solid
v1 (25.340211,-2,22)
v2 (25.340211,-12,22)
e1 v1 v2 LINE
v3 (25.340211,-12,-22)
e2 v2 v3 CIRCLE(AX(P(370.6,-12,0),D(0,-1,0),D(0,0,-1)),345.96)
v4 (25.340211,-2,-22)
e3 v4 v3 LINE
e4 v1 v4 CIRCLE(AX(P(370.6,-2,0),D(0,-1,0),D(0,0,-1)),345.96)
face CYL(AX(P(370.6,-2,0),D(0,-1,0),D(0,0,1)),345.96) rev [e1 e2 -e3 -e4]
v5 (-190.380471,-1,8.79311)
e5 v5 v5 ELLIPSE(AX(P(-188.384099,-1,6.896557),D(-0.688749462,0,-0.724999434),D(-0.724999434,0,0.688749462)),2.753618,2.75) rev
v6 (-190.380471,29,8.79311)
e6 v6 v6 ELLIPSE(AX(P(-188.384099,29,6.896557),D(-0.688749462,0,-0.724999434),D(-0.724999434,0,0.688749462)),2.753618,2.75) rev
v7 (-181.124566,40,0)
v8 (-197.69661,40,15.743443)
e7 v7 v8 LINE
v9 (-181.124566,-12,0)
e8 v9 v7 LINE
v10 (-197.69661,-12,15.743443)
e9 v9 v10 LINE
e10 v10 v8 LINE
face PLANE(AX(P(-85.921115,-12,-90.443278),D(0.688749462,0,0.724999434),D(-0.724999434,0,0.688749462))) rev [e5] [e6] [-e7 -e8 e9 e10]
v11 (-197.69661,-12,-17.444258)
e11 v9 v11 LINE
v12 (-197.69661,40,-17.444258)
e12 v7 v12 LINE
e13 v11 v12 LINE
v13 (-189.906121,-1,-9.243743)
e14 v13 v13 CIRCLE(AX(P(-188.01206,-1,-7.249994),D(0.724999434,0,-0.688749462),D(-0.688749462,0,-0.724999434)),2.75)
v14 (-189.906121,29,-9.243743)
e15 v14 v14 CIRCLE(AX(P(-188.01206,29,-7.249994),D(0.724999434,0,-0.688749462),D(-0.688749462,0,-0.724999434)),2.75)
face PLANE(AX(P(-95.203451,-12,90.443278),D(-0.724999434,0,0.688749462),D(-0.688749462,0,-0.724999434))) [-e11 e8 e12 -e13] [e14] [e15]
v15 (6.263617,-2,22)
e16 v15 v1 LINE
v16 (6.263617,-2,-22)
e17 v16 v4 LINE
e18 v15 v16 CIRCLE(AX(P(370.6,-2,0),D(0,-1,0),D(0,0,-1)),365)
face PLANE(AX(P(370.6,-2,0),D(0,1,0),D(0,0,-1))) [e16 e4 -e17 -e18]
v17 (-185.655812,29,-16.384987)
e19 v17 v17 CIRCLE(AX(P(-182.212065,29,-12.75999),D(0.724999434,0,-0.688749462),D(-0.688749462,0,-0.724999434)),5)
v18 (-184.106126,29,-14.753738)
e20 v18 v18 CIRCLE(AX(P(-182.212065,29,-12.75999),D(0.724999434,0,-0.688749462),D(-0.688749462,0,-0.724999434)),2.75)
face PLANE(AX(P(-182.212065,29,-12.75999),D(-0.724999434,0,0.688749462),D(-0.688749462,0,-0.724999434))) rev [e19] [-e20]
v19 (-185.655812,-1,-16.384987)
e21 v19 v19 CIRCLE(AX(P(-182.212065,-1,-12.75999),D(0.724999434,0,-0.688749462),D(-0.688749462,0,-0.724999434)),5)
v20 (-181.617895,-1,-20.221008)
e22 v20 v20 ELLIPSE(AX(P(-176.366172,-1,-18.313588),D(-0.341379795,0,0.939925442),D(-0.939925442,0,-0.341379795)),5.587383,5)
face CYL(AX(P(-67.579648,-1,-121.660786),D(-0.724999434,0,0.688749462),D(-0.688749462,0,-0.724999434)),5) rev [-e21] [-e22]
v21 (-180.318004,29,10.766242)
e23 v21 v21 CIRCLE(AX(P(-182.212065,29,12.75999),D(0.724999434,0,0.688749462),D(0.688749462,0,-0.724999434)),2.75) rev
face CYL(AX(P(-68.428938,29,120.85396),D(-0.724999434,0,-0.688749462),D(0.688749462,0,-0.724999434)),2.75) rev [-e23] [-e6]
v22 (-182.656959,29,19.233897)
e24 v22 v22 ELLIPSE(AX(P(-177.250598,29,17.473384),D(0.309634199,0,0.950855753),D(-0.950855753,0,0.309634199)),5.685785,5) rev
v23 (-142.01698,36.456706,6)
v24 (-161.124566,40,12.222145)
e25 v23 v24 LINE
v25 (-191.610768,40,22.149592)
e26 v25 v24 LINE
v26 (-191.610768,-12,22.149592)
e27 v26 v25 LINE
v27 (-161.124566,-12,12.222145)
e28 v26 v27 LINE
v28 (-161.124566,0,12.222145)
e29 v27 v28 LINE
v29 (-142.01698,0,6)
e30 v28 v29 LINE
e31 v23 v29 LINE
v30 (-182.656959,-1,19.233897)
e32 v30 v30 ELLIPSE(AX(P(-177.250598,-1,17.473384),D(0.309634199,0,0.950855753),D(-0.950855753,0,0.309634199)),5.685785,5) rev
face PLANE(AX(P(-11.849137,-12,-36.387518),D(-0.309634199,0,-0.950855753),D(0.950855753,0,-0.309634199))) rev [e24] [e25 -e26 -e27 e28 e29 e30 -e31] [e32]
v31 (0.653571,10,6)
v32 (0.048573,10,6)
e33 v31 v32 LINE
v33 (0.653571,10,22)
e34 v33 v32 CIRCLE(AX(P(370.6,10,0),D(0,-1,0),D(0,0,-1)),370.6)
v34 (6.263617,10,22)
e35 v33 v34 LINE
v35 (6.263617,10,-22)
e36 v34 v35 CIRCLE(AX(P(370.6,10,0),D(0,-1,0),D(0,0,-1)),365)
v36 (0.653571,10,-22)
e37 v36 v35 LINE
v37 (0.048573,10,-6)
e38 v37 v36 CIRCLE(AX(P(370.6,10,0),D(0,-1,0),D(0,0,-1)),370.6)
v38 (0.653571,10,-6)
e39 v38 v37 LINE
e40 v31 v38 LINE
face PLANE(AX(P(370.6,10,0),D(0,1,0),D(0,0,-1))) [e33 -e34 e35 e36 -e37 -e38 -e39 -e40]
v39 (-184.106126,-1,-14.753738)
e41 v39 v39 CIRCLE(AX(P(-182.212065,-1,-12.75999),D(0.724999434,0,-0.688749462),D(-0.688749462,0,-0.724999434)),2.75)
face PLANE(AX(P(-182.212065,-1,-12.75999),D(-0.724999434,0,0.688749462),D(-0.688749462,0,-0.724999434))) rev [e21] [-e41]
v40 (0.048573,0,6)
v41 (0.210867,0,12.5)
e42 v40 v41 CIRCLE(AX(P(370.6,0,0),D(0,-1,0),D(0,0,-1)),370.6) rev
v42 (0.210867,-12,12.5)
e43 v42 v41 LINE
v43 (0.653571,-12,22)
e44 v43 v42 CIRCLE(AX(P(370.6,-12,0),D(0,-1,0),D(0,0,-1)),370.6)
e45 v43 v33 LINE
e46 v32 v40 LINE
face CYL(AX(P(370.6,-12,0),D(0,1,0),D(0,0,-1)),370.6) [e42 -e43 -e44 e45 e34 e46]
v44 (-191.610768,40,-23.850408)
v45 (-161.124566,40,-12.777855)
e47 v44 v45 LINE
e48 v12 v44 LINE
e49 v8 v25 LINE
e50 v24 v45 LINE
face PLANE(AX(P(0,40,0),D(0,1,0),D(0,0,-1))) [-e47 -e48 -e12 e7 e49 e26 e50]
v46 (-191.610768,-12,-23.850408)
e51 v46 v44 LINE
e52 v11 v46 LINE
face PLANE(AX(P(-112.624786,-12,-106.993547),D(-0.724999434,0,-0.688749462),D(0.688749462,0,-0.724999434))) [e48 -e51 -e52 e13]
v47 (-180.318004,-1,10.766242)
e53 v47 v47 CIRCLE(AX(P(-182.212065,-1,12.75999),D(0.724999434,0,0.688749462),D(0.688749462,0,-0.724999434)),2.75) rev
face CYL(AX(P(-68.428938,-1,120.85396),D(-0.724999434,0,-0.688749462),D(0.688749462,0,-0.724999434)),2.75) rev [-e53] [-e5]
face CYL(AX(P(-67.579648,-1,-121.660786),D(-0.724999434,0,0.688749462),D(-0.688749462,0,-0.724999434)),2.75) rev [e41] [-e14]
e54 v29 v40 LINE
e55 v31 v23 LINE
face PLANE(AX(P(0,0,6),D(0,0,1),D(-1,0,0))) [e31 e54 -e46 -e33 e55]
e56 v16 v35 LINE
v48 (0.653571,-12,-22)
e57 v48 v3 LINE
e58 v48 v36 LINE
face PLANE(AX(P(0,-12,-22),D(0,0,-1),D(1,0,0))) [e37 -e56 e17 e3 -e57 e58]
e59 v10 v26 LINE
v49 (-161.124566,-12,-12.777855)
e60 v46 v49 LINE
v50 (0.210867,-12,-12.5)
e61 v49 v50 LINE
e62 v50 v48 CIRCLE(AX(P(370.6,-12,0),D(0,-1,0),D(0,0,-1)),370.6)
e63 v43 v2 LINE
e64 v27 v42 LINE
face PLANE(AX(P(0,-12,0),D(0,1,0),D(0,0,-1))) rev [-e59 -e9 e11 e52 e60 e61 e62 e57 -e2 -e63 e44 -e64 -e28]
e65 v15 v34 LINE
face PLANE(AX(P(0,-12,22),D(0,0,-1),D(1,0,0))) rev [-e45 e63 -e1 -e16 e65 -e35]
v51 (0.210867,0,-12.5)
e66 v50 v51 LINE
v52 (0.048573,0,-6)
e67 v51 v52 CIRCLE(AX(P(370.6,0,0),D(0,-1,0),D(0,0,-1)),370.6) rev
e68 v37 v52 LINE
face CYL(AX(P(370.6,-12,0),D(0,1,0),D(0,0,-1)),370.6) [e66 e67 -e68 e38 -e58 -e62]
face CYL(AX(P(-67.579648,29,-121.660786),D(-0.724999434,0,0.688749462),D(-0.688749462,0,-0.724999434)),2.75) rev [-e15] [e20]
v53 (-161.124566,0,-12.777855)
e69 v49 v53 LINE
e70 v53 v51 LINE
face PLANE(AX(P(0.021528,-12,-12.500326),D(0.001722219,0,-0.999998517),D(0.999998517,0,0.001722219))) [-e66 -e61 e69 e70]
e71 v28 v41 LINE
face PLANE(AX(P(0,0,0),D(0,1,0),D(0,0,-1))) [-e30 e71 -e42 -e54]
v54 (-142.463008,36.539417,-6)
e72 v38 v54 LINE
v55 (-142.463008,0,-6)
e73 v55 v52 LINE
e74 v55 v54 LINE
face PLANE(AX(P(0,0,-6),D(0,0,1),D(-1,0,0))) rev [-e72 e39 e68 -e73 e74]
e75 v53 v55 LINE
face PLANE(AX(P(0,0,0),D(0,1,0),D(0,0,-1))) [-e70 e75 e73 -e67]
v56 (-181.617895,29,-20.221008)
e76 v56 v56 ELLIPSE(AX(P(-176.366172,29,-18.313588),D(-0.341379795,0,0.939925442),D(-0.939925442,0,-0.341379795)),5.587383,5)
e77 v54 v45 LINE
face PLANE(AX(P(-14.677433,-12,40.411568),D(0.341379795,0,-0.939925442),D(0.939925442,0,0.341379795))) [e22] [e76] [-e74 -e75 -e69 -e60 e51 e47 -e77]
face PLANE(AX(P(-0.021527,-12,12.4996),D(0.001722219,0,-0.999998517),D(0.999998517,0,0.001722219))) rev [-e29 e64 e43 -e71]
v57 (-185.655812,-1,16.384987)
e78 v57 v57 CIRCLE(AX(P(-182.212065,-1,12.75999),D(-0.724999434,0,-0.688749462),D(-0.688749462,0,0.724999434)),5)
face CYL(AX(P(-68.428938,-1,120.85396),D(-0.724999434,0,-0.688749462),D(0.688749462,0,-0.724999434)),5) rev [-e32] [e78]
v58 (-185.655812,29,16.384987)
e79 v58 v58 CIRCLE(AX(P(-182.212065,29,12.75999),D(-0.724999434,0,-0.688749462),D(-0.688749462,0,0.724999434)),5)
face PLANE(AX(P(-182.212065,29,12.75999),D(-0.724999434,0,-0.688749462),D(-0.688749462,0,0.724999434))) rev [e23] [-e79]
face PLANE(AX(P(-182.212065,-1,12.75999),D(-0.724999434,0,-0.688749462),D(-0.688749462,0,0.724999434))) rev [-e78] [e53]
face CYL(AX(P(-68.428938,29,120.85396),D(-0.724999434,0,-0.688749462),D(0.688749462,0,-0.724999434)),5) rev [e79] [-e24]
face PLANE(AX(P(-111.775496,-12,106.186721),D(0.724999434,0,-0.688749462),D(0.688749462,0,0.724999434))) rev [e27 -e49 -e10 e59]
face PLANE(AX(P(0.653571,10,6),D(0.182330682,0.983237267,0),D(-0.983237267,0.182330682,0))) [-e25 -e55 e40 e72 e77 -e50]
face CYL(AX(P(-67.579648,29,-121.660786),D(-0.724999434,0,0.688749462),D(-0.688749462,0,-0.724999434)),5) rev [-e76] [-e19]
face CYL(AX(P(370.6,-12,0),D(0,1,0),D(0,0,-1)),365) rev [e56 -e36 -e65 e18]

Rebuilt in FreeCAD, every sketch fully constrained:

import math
import FreeCAD as App
import Part
import Sketcher

doc = App.newDocument("Part")
body = doc.addObject("PartDesign::Body", "Body")

sketch1 = body.newObject("Sketcher::SketchObject", "Sketch")
sketch1.AttachmentSupport = (doc.getObject("XZ_Plane"), [""])
sketch1.MapMode = "FlatFace"
sketch1.addGeometry(Part.LineSegment(App.Vector(-198, -16, 0), App.Vector(-181, 0, 0)), False)
sketch1.addGeometry(Part.LineSegment(App.Vector(-181, 0, 0), App.Vector(-198, 17, 0)), False)
sketch1.addGeometry(Part.LineSegment(App.Vector(-198, 17, 0), App.Vector(-192, 24, 0)), False)
sketch1.addGeometry(Part.LineSegment(App.Vector(-192, 24, 0), App.Vector(-161, 13, 0)), False)
sketch1.addGeometry(Part.LineSegment(App.Vector(-161, 13, 0), App.Vector(0, 12, 0)), False)
sketch1.addGeometry(Part.ArcOfCircle(Part.Circle(App.Vector(371, 0, 0), App.Vector(0, 0, 1), 371), math.radians(176.6), math.radians(178.07)), False)
sketch1.addGeometry(Part.LineSegment(App.Vector(1, 22, 0), App.Vector(6, 22, 0)), False)
sketch1.addGeometry(Part.ArcOfCircle(Part.Circle(App.Vector(371, 0, 0), App.Vector(0, 0, 1), 365), math.radians(176.54), math.radians(183.46)), False)
sketch1.addGeometry(Part.LineSegment(App.Vector(6, -22, 0), App.Vector(1, -22, 0)), False)
sketch1.addGeometry(Part.ArcOfCircle(Part.Circle(App.Vector(371, 0, 0), App.Vector(0, 0, 1), 371), math.radians(-178.07), math.radians(-176.6)), False)
sketch1.addGeometry(Part.LineSegment(App.Vector(0, -12, 0), App.Vector(-161, -12, 0)), False)
sketch1.addGeometry(Part.LineSegment(App.Vector(-161, -12, 0), App.Vector(-192, -22, 0)), False)
sketch1.addGeometry(Part.LineSegment(App.Vector(-192, -22, 0), App.Vector(-198, -16, 0)), False)
sketch1.addConstraint(Sketcher.Constraint("Coincident", 0, 2, 1, 1))
sketch1.addConstraint(Sketcher.Constraint("Coincident", 1, 2, 2, 1))
sketch1.addConstraint(Sketcher.Constraint("Coincident", 2, 2, 3, 1))
sketch1.addConstraint(Sketcher.Constraint("Coincident", 3, 2, 4, 1))
sketch1.addConstraint(Sketcher.Constraint("Coincident", 4, 2, 5, 2))
sketch1.addConstraint(Sketcher.Constraint("Coincident", 5, 1, 6, 1))
sketch1.addConstraint(Sketcher.Constraint("Coincident", 6, 2, 7, 1))
sketch1.addConstraint(Sketcher.Constraint("Coincident", 7, 2, 8, 1))
sketch1.addConstraint(Sketcher.Constraint("Coincident", 8, 2, 9, 2))
sketch1.addConstraint(Sketcher.Constraint("Coincident", 9, 1, 10, 1))
sketch1.addConstraint(Sketcher.Constraint("Coincident", 10, 2, 11, 1))
sketch1.addConstraint(Sketcher.Constraint("Coincident", 11, 2, 12, 1))
sketch1.addConstraint(Sketcher.Constraint("Coincident", 12, 2, 0, 1))
sketch1.addConstraint(Sketcher.Constraint("Horizontal", 6))
sketch1.addConstraint(Sketcher.Constraint("Horizontal", 8))
sketch1.addConstraint(Sketcher.Constraint("Coincident", 7, 3, 5, 3))
sketch1.addConstraint(Sketcher.Constraint("Coincident", 9, 3, 5, 3))
sketch1.addConstraint(Sketcher.Constraint("Equal", 5, 9))
sketch1.addConstraint(Sketcher.Constraint("Symmetric", 6, 2, 7, 2, -1))
sketch1.addConstraint(Sketcher.Constraint("PointOnObject", 0, 2, -1))
sketch1.addConstraint(Sketcher.Constraint("Perpendicular", 0, 1))
sketch1.addConstraint(Sketcher.Constraint("Parallel", 4, 10))
sketch1.addConstraint(Sketcher.Constraint("Parallel", 1, 12))
sketch1.addConstraint(Sketcher.Constraint("Vertical", 4, 2, 9, 1))
sketch1.addConstraint(Sketcher.Constraint("Vertical", 3, 2, 10, 2))
sketch1.addConstraint(Sketcher.Constraint("Vertical", 2, 2, 11, 2))
sketch1.addConstraint(Sketcher.Constraint("Vertical", 1, 2, 12, 2))
sketch1.addConstraint(Sketcher.Constraint("Equal", 2, 12))
sketch1.addConstraint(Sketcher.Constraint("Radius", 7, 365.0))
sketch1.addConstraint(Sketcher.Constraint("DistanceY", -1, 1, 6, 2, 22.0))
sketch1.addConstraint(Sketcher.Constraint("DistanceX", 0, 2, 3, 2, 20.0))
sketch1.addConstraint(Sketcher.Constraint("DistanceY", 9, 1, 4, 2, 25.0))
sketch1.addConstraint(Sketcher.Constraint("DistanceY", 11, 2, 2, 2, 46.0))
sketch1.addConstraint(Sketcher.Constraint("DistanceX", -1, 1, 7, 3, 370.6))
sketch1.addConstraint(Sketcher.Constraint("Radius", 5, 370.599996))
sketch1.addConstraint(Sketcher.Constraint("DistanceY", 12, 2, 1, 2, 33.1877))
sketch1.addConstraint(Sketcher.Constraint("Distance", 0, 22.858011))
sketch1.addConstraint(Sketcher.Constraint("Distance", 4, 161.335672))
sketch1.addConstraint(Sketcher.Constraint("Distance", 11, 32.061858))
pad1 = body.newObject("PartDesign::Pad", "Pad")
pad1.Profile = sketch1
pad1.Length = 12

sketch2 = body.newObject("Sketcher::SketchObject", "Sketch001")
sketch2.AttachmentSupport = (doc.getObject("XZ_Plane"), [""])
sketch2.MapMode = "FlatFace"
sketch2.AttachmentOffset = App.Placement(App.Vector(0, 0, 2), App.Rotation())
sketch2.addGeometry(Part.LineSegment(App.Vector(25, -22, 0), App.Vector(6, -22, 0)), False)
sketch2.addGeometry(Part.ArcOfCircle(Part.Circle(App.Vector(371, 0, 0), App.Vector(0, 0, 1), 365), math.radians(176.54), math.radians(183.46)), False)
sketch2.addGeometry(Part.LineSegment(App.Vector(6, 22, 0), App.Vector(25, 22, 0)), False)
sketch2.addGeometry(Part.ArcOfCircle(Part.Circle(App.Vector(371, 0, 0), App.Vector(0, 0, 1), 346), math.radians(176.35), math.radians(183.65)), False)
sketch2.addConstraint(Sketcher.Constraint("Coincident", 0, 2, 1, 2))
sketch2.addConstraint(Sketcher.Constraint("Coincident", 1, 1, 2, 1))
sketch2.addConstraint(Sketcher.Constraint("Coincident", 2, 2, 3, 1))
sketch2.addConstraint(Sketcher.Constraint("Coincident", 3, 2, 0, 1))
sketch2.addConstraint(Sketcher.Constraint("Horizontal", 0))
sketch2.addConstraint(Sketcher.Constraint("Horizontal", 2))
sketch2.addConstraint(Sketcher.Constraint("Coincident", 3, 3, 1, 3))
sketch2.addConstraint(Sketcher.Constraint("Symmetric", 0, 2, 1, 1, -1))
sketch2.addConstraint(Sketcher.Constraint("Radius", 1, 365.0))
sketch2.addConstraint(Sketcher.Constraint("Radius", 3, 345.96))
sketch2.addConstraint(Sketcher.Constraint("DistanceY", 0, 2, -1, 1, 22.0))
sketch2.addConstraint(Sketcher.Constraint("DistanceX", -1, 1, 1, 3, 370.6))
pad2 = body.newObject("PartDesign::Pad", "Pad001")
pad2.Profile = sketch2
pad2.Length = 10

sketch3 = body.newObject("Sketcher::SketchObject", "Sketch002")
sketch3.AttachmentSupport = (doc.getObject("XZ_Plane"), [""])
sketch3.MapMode = "FlatFace"
sketch3.AttachmentOffset = App.Placement(App.Vector(0, 0, -10), App.Rotation())
sketch3.addGeometry(Part.ArcOfCircle(Part.Circle(App.Vector(371, 0, 0), App.Vector(0, 0, 1), 371), math.radians(-178.07), math.radians(-176.6)), False)
sketch3.addGeometry(Part.ArcOfCircle(Part.Circle(App.Vector(371, 0, 0), App.Vector(0, 0, 1), 371), math.radians(178.07), math.radians(181.93)), False)
sketch3.addGeometry(Part.ArcOfCircle(Part.Circle(App.Vector(371, 0, 0), App.Vector(0, 0, 1), 371), math.radians(176.6), math.radians(178.07)), False)
sketch3.addGeometry(Part.LineSegment(App.Vector(1, 22, 0), App.Vector(6, 22, 0)), False)
sketch3.addGeometry(Part.ArcOfCircle(Part.Circle(App.Vector(371, 0, 0), App.Vector(0, 0, 1), 365), math.radians(176.54), math.radians(183.46)), False)
sketch3.addGeometry(Part.LineSegment(App.Vector(6, -22, 0), App.Vector(1, -22, 0)), False)
sketch3.addConstraint(Sketcher.Constraint("Tangent", 0, 1, 1, 2))
sketch3.addConstraint(Sketcher.Constraint("Tangent", 1, 1, 2, 2))
sketch3.addConstraint(Sketcher.Constraint("Coincident", 2, 1, 3, 1))
sketch3.addConstraint(Sketcher.Constraint("Coincident", 3, 2, 4, 1))
sketch3.addConstraint(Sketcher.Constraint("Coincident", 4, 2, 5, 1))
sketch3.addConstraint(Sketcher.Constraint("Coincident", 5, 2, 0, 2))
sketch3.addConstraint(Sketcher.Constraint("Horizontal", 3))
sketch3.addConstraint(Sketcher.Constraint("Horizontal", 5))
sketch3.addConstraint(Sketcher.Constraint("Coincident", 2, 3, 0, 3))
sketch3.addConstraint(Sketcher.Constraint("Coincident", 4, 3, 0, 3))
sketch3.addConstraint(Sketcher.Constraint("PointOnObject", 0, 3, -1))
sketch3.addConstraint(Sketcher.Constraint("Vertical", 0, 1, 1, 1))
sketch3.addConstraint(Sketcher.Constraint("Vertical", 3, 2, 4, 2))
sketch3.addConstraint(Sketcher.Constraint("Radius", 4, 365.0))
sketch3.addConstraint(Sketcher.Constraint("Radius", 1, 370.6))
sketch3.addConstraint(Sketcher.Constraint("DistanceY", -1, 1, 3, 2, 22.0))
sketch3.addConstraint(Sketcher.Constraint("DistanceY", 0, 1, 1, 1, 25.0))
sketch3.addConstraint(Sketcher.Constraint("DistanceX", -1, 1, 1, 3, 370.6))
pad3 = body.newObject("PartDesign::Pad", "Pad002")
pad3.Profile = sketch3
pad3.Length = 22

sketch4 = body.newObject("Sketcher::SketchObject", "Sketch003")
sketch4.AttachmentSupport = (doc.getObject("XZ_Plane"), [""])
sketch4.MapMode = "FlatFace"
sketch4.addGeometry(Part.LineSegment(App.Vector(-198, -16, 0), App.Vector(-181, 0, 0)), False)
sketch4.addGeometry(Part.LineSegment(App.Vector(-181, 0, 0), App.Vector(-198, 17, 0)), False)
sketch4.addGeometry(Part.LineSegment(App.Vector(-198, 17, 0), App.Vector(-192, 24, 0)), False)
sketch4.addGeometry(Part.LineSegment(App.Vector(-192, 24, 0), App.Vector(-125, 0, 0)), False)
sketch4.addGeometry(Part.LineSegment(App.Vector(-125, 0, 0), App.Vector(-192, -22, 0)), False)
sketch4.addGeometry(Part.LineSegment(App.Vector(-192, -22, 0), App.Vector(-198, -16, 0)), False)
sketch4.addConstraint(Sketcher.Constraint("Coincident", 0, 2, 1, 1))
sketch4.addConstraint(Sketcher.Constraint("Coincident", 1, 2, 2, 1))
sketch4.addConstraint(Sketcher.Constraint("Coincident", 2, 2, 3, 1))
sketch4.addConstraint(Sketcher.Constraint("Coincident", 3, 2, 4, 1))
sketch4.addConstraint(Sketcher.Constraint("Coincident", 4, 2, 5, 1))
sketch4.addConstraint(Sketcher.Constraint("Coincident", 5, 2, 0, 1))
sketch4.addConstraint(Sketcher.Constraint("PointOnObject", 0, 2, -1))
sketch4.addConstraint(Sketcher.Constraint("Perpendicular", 0, 1))
sketch4.addConstraint(Sketcher.Constraint("Parallel", 1, 5))
sketch4.addConstraint(Sketcher.Constraint("Vertical", 2, 2, 4, 2))
sketch4.addConstraint(Sketcher.Constraint("Vertical", 1, 2, 5, 2))
sketch4.addConstraint(Sketcher.Constraint("Equal", 2, 5))
sketch4.addConstraint(Sketcher.Constraint("DistanceY", 4, 2, 2, 2, 46.0))
sketch4.addConstraint(Sketcher.Constraint("DistanceX", 0, 2, 3, 2, 56.293098))
sketch4.addConstraint(Sketcher.Constraint("DistanceX", 2, 2, 3, 2, 66.7793))
sketch4.addConstraint(Sketcher.Constraint("DistanceY", 5, 2, 1, 2, 33.1877))
sketch4.addConstraint(Sketcher.Constraint("DistanceX", 1, 2, -1, 1, 197.69661))
sketch4.addConstraint(Sketcher.Constraint("DistanceY", 3, 2, 2, 2, 24.254162))
pad4 = body.newObject("PartDesign::Pad", "Pad003")
pad4.Profile = sketch4
pad4.Length = 40
pad4.Reversed = True

sketch5 = body.newObject("Sketcher::SketchObject", "Sketch004")
sketch5.AttachmentSupport = (doc.getObject("XY_Plane"), [""])
sketch5.MapMode = "FlatFace"
sketch5.addGeometry(Part.LineSegment(App.Vector(1, 10, 0), App.Vector(-161, 40, 0)), False)
sketch5.addGeometry(Part.LineSegment(App.Vector(-161, 40, 0), App.Vector(-161, 0, 0)), False)
sketch5.addGeometry(Part.LineSegment(App.Vector(-161, 0, 0), App.Vector(1, 0, 0)), False)
sketch5.addGeometry(Part.LineSegment(App.Vector(1, 0, 0), App.Vector(1, 10, 0)), False)
sketch5.addConstraint(Sketcher.Constraint("Coincident", 0, 2, 1, 1))
sketch5.addConstraint(Sketcher.Constraint("Coincident", 1, 2, 2, 1))
sketch5.addConstraint(Sketcher.Constraint("Coincident", 2, 2, 3, 1))
sketch5.addConstraint(Sketcher.Constraint("Coincident", 3, 2, 0, 1))
sketch5.addConstraint(Sketcher.Constraint("Vertical", 1))
sketch5.addConstraint(Sketcher.Constraint("Horizontal", 2))
sketch5.addConstraint(Sketcher.Constraint("Vertical", 3))
sketch5.addConstraint(Sketcher.Constraint("PointOnObject", 1, 2, -1))
sketch5.addConstraint(Sketcher.Constraint("DistanceY", 1, 2, 1, 1, 40.0))
sketch5.addConstraint(Sketcher.Constraint("DistanceY", 3, 1, 3, 2, 10.0))
sketch5.addConstraint(Sketcher.Constraint("DistanceX", 2, 1, 2, 2, 161.778137))
sketch5.addConstraint(Sketcher.Constraint("DistanceX", -1, 1, 2, 2, 0.653571))
pad5 = body.newObject("PartDesign::Pad", "Pad004")
pad5.Profile = sketch5
pad5.Type = "TwoLengths"
pad5.Length = 6
pad5.Length2 = 6

sketch6 = body.newObject("Sketcher::SketchObject", "Sketch005")
sketch6.AttachmentSupport = (doc.getObject("XY_Plane"), [""])
sketch6.MapMode = "FlatFace"
sketch6.addGeometry(Part.LineSegment(App.Vector(-161, 40, 0), App.Vector(1, 10, 0)), False)
sketch6.addGeometry(Part.LineSegment(App.Vector(1, 10, 0), App.Vector(2, 20, 0)), False)
sketch6.addGeometry(Part.LineSegment(App.Vector(2, 20, 0), App.Vector(-159, 50, 0)), False)
sketch6.addGeometry(Part.LineSegment(App.Vector(-159, 50, 0), App.Vector(-161, 40, 0)), False)
sketch6.addConstraint(Sketcher.Constraint("Coincident", 0, 2, 1, 1))
sketch6.addConstraint(Sketcher.Constraint("Coincident", 1, 2, 2, 1))
sketch6.addConstraint(Sketcher.Constraint("Coincident", 2, 2, 3, 1))
sketch6.addConstraint(Sketcher.Constraint("Coincident", 3, 2, 0, 1))
sketch6.addConstraint(Sketcher.Constraint("Perpendicular", 0, 1))
sketch6.addConstraint(Sketcher.Constraint("Perpendicular", 1, 2))
sketch6.addConstraint(Sketcher.Constraint("Perpendicular", 2, 3))
sketch6.addConstraint(Sketcher.Constraint("Distance", 1, 10.0))
sketch6.addConstraint(Sketcher.Constraint("DistanceY", -1, 1, 0, 2, 10.0))
sketch6.addConstraint(Sketcher.Constraint("DistanceY", -1, 1, 3, 2, 40.0))
sketch6.addConstraint(Sketcher.Constraint("DistanceX", -1, 1, 0, 2, 0.653571))
sketch6.addConstraint(Sketcher.Constraint("DistanceX", -1, 1, 1, 2, 2.476878))
pocket1 = body.newObject("PartDesign::Pocket", "Pocket")
pocket1.Profile = sketch6
pocket1.Type = "ThroughAll"
pocket1.Midplane = True

sketch7 = body.newObject("Sketcher::SketchObject", "Sketch006")
sketch7.Placement = App.Placement(App.Vector(-89.403456, 0, -84.933283), App.Rotation(App.Vector(-0.688749462, 0, 0.724999434), App.Vector(0, 1.000000001, 0), App.Vector(-0.724999434, 0, -0.688749462), "ZXY"))
sketch7.addGeometry(Part.Circle(App.Vector(135, 29, 0), App.Vector(0, 0, 1), 5), False)
sketch7.addGeometry(Part.Circle(App.Vector(135, -1, 0), App.Vector(0, 0, 1), 5), False)
sketch7.addConstraint(Sketcher.Constraint("Equal", 0, 1))
sketch7.addConstraint(Sketcher.Constraint("Vertical", 0, 3, 1, 3))
sketch7.addConstraint(Sketcher.Constraint("Diameter", 0, 10.0))
sketch7.addConstraint(Sketcher.Constraint("DistanceY", -1, 1, 0, 3, 29.0))
sketch7.addConstraint(Sketcher.Constraint("DistanceY", 1, 3, -1, 1, 1.0))
sketch7.addConstraint(Sketcher.Constraint("DistanceX", -1, 1, 0, 3, 134.749447))
pocket2 = body.newObject("PartDesign::Pocket", "Pocket001")
pocket2.Profile = sketch7
pocket2.Type = "ThroughAll"

sketch8 = body.newObject("Sketcher::SketchObject", "Sketch007")
sketch8.Placement = App.Placement(App.Vector(-95.203451, 0, -90.443278), App.Rotation(App.Vector(-0.688749462, 0, 0.724999434), App.Vector(0, 1.000000001, 0), App.Vector(-0.724999434, 0, -0.688749462), "ZXY"))
sketch8.addGeometry(Part.Circle(App.Vector(134.7, 29, 0), App.Vector(0, 0, 1), 2.8), False)
sketch8.addGeometry(Part.Circle(App.Vector(134.7, -1, 0), App.Vector(0, 0, 1), 2.8), False)
sketch8.addConstraint(Sketcher.Constraint("Equal", 0, 1))
sketch8.addConstraint(Sketcher.Constraint("Vertical", 0, 3, 1, 3))
sketch8.addConstraint(Sketcher.Constraint("Diameter", 0, 5.5))
sketch8.addConstraint(Sketcher.Constraint("DistanceY", -1, 1, 0, 3, 29.0))
sketch8.addConstraint(Sketcher.Constraint("DistanceY", 1, 3, -1, 1, 1.0))
sketch8.addConstraint(Sketcher.Constraint("DistanceX", -1, 1, 0, 3, 134.749447))
pocket3 = body.newObject("PartDesign::Pocket", "Pocket002")
pocket3.Profile = sketch8
pocket3.Length = 343.723989
pocket3.Midplane = True
doc.recompute()

mirrored = body.newObject("PartDesign::Mirrored", "Mirrored")
mirrored.Originals = [pocket2, pocket3]
mirrored.MirrorPlane = (doc.getObject("XY_Plane"), [""])
body.Tip = mirrored
body2 = doc.addObject("PartDesign::Body", "Body001")
doc.recompute()

mirroring = doc.addObject("Part::Mirroring", "Mirroring")
mirroring.Source = body
mirroring.Base = App.Vector(0, 0, 0)
mirroring.Normal = App.Vector(0, 0, 1)
body2.BaseFeature = mirroring
doc.recompute()
body.Visibility = False
mirroring.Visibility = False

doc.recompute()
